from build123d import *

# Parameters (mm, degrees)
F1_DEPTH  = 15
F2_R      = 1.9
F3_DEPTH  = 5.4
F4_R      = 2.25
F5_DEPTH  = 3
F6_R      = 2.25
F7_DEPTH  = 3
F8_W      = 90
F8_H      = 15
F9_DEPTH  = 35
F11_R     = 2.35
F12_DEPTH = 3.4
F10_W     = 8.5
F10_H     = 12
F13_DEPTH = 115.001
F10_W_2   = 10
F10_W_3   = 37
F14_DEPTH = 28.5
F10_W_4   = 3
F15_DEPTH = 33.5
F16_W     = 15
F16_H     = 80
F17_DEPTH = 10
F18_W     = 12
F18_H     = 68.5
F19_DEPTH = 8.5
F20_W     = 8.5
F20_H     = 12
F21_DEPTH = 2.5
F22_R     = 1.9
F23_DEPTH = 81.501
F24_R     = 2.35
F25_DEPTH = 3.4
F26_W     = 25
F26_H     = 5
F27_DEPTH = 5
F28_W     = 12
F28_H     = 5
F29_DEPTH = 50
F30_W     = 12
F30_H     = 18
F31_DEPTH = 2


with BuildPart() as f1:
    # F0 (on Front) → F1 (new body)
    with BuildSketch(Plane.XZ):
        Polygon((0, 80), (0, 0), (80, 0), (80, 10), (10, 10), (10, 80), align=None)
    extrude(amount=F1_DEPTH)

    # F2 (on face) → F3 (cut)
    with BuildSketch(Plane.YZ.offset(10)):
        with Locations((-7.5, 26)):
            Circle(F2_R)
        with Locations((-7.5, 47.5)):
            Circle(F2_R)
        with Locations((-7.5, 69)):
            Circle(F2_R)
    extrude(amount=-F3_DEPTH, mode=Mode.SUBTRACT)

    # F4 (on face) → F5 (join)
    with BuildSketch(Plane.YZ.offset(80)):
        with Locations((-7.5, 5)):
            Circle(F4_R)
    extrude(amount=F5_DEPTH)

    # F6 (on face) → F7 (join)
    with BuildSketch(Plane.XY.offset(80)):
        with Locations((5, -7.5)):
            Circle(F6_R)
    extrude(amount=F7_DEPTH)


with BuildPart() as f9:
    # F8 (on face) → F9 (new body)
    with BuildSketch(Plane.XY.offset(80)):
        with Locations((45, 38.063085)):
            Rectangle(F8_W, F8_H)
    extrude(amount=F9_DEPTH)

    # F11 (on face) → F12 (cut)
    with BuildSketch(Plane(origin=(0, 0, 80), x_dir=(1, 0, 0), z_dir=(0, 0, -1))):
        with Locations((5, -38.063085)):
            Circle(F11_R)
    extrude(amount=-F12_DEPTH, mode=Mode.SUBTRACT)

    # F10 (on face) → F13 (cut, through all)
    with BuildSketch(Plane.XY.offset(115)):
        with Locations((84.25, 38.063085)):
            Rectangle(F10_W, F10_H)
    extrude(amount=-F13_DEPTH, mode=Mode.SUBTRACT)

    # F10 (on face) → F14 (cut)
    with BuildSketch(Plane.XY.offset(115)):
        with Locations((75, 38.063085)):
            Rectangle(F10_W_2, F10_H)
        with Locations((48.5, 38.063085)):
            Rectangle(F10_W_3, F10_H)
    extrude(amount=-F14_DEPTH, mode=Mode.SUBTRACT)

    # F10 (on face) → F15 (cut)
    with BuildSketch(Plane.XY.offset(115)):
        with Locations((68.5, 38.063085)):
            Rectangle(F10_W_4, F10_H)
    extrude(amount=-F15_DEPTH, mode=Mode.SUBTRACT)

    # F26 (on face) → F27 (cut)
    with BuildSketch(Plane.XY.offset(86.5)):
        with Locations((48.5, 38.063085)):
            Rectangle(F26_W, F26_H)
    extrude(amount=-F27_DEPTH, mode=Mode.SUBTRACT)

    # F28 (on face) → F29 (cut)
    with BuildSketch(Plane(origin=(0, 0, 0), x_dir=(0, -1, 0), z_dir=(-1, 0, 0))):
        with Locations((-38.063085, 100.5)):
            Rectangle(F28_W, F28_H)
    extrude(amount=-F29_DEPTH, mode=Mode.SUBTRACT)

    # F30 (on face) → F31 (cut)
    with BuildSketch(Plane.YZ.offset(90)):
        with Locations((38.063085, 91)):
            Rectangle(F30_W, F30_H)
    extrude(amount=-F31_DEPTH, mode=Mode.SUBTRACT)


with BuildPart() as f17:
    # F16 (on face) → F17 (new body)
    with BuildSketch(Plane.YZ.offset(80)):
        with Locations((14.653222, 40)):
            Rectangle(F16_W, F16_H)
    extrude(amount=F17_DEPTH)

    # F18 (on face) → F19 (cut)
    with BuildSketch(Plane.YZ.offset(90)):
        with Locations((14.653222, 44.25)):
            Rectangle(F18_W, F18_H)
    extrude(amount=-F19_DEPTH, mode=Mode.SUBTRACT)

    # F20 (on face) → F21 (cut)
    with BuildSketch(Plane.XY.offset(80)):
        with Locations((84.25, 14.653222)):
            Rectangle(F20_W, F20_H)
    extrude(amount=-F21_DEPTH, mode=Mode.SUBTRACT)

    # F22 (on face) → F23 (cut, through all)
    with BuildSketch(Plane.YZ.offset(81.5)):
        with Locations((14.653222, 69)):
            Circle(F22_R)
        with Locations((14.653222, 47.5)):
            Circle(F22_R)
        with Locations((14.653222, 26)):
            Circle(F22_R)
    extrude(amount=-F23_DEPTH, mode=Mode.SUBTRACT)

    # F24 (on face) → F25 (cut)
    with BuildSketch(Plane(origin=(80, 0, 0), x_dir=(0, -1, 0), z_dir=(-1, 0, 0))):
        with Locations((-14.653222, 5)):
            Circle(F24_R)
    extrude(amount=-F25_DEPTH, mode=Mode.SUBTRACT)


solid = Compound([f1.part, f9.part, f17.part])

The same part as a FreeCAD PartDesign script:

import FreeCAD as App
import Part
import Sketcher

V = App.Vector
Q = App.Units.Quantity


def add_polygon(sketch, points):
    """Adds a closed chain of lines whose ends are joined by coincident constraints."""
    first, n = sketch.GeometryCount, len(points)
    for a, b in zip(points, points[1:] + points[:1]):
        sketch.addGeometry(Part.LineSegment(App.Vector(*a, 0), App.Vector(*b, 0)), False)
    for i in range(n):
        sketch.addConstraint(Sketcher.Constraint("Coincident", first + i, 2, first + (i + 1) % n, 1))

doc = App.newDocument("Part")
body = doc.addObject("PartDesign::Body", "Body")

# Sketch on XZ plane
sketch1 = body.newObject("Sketcher::SketchObject", "Sketch")
sketch1.AttachmentSupport = (doc.getObject("XZ_Plane"), [""])
sketch1.MapMode = "FlatFace"
add_polygon(sketch1, [(0, 80), (0, 0), (80, 0), (80, 10), (10, 10), (10, 80)])  # lines 0-5
sketch1.addConstraint([
    Sketcher.Constraint("Vertical", 0),
    Sketcher.Constraint("Horizontal", 1),
    Sketcher.Constraint("Vertical", 2),
    Sketcher.Constraint("Horizontal", 3),
    Sketcher.Constraint("Vertical", 4),
    Sketcher.Constraint("Horizontal", 5),
    Sketcher.Constraint("Coincident", 0, 2, -1, 1),
    Sketcher.Constraint("Equal", 1, 0),
    Sketcher.Constraint("Equal", 5, 2),
    Sketcher.Constraint("DistanceX", 1, 1, 1, 2, Q("80 mm")),
    Sketcher.Constraint("DistanceX", 3, 2, 3, 1, Q("70 mm")),
])
pad1 = body.newObject("PartDesign::Pad", "Pad")
pad1.Profile = sketch1
pad1.Length = 15

# Sketch on YZ plane
sketch2 = body.newObject("Sketcher::SketchObject", "Sketch001")
sketch2.AttachmentSupport = (doc.getObject("YZ_Plane"), [""])
sketch2.MapMode = "FlatFace"
sketch2.AttachmentOffset = App.Placement(V(0, 0, 10), App.Rotation())
sketch2.addGeometry([
    Part.Circle(V(-7.5, 26, 0), V(0, 0, 1), 1.9),
    Part.Circle(V(-7.5, 47.5, 0), V(0, 0, 1), 1.9),
    Part.Circle(V(-7.5, 69, 0), V(0, 0, 1), 1.9),
], False)
sketch2.addConstraint([
    Sketcher.Constraint("Equal", 0, 1),
    Sketcher.Constraint("Equal", 1, 2),
    Sketcher.Constraint("Vertical", 0, 3, 1, 3),
    Sketcher.Constraint("Vertical", 1, 3, 2, 3),
    Sketcher.Constraint("Diameter", 0, Q("3.8 mm")),
    Sketcher.Constraint("DistanceY", -1, 1, 0, 3, Q("26 mm")),
    Sketcher.Constraint("DistanceY", -1, 1, 2, 3, Q("69 mm")),
    Sketcher.Constraint("DistanceX", 0, 3, -1, 1, Q("7.5 mm")),
    Sketcher.Constraint("DistanceY", -1, 1, 1, 3, Q("47.5 mm")),
])
pocket1 = body.newObject("PartDesign::Pocket", "Pocket")
pocket1.Profile = sketch2
pocket1.Length = 5.4

# Sketch on YZ plane
sketch3 = body.newObject("Sketcher::SketchObject", "Sketch002")
sketch3.AttachmentSupport = (doc.getObject("YZ_Plane"), [""])
sketch3.MapMode = "FlatFace"
sketch3.AttachmentOffset = App.Placement(V(0, 0, 80), App.Rotation())
sketch3.addGeometry(Part.Circle(V(-7.5, 5, 0), V(0, 0, 1), 2.2), False)
sketch3.addConstraint([
    Sketcher.Constraint("Diameter", 0, Q("4.5 mm")),
    Sketcher.Constraint("DistanceY", -1, 1, 0, 3, Q("5 mm")),
    Sketcher.Constraint("DistanceX", 0, 3, -1, 1, Q("7.5 mm")),
])
pad2 = body.newObject("PartDesign::Pad", "Pad001")
pad2.Profile = sketch3
pad2.Length = 3

# Sketch on XY plane
sketch4 = body.newObject("Sketcher::SketchObject", "Sketch003")
sketch4.AttachmentSupport = (doc.getObject("XY_Plane"), [""])
sketch4.MapMode = "FlatFace"
sketch4.AttachmentOffset = App.Placement(V(0, 0, 80), App.Rotation())
sketch4.addGeometry(Part.Circle(V(5, -7.5, 0), V(0, 0, 1), 2.2), False)
sketch4.addConstraint([
    Sketcher.Constraint("Diameter", 0, Q("4.5 mm")),
    Sketcher.Constraint("DistanceX", -1, 1, 0, 3, Q("5 mm")),
    Sketcher.Constraint("DistanceY", 0, 3, -1, 1, Q("7.5 mm")),
])
pad3 = body.newObject("PartDesign::Pad", "Pad002")
pad3.Profile = sketch4
pad3.Length = 3
body2 = doc.addObject("PartDesign::Body", "Body001")

# Sketch on XY plane
sketch5 = body2.newObject("Sketcher::SketchObject", "Sketch004")
sketch5.AttachmentSupport = (doc.getObject("XY_Plane001"), [""])
sketch5.MapMode = "FlatFace"
sketch5.AttachmentOffset = App.Placement(V(0, 0, 80), App.Rotation())
add_polygon(sketch5, [(0, 46), (0, 31), (90, 31), (90, 46)])  # lines 0-3
sketch5.addConstraint([
    Sketcher.Constraint("Vertical", 0),
    Sketcher.Constraint("Horizontal", 1),
    Sketcher.Constraint("Vertical", 2),
    Sketcher.Constraint("Horizontal", 3),
    Sketcher.Constraint("PointOnObject", 0, 2, -2),
    Sketcher.Constraint("DistanceX", 1, 1, 1, 2, Q("90 mm")),
    Sketcher.Constraint("DistanceY", 0, 2, 0, 1, Q("15 mm")),
    Sketcher.Constraint("DistanceY", -1, 1, 0, 2, Q("30.563085 mm")),
])
pad4 = body2.newObject("PartDesign::Pad", "Pad003")
pad4.Profile = sketch5
pad4.Length = 35

# Sketch on XY plane
sketch6 = body2.newObject("Sketcher::SketchObject", "Sketch005")
sketch6.AttachmentSupport = (doc.getObject("XY_Plane001"), [""])
sketch6.MapMode = "FlatFace"
sketch6.AttachmentOffset = App.Placement(V(0, 0, 80), App.Rotation())
sketch6.addGeometry(Part.Circle(V(5, 38.1, 0), V(0, 0, 1), 2.4), False)
sketch6.addConstraint([
    Sketcher.Constraint("Diameter", 0, Q("4.7 mm")),
    Sketcher.Constraint("DistanceX", -1, 1, 0, 3, Q("5 mm")),
    Sketcher.Constraint("DistanceY", -1, 1, 0, 3, Q("38.063085 mm")),
])
pocket2 = body2.newObject("PartDesign::Pocket", "Pocket001")
pocket2.Profile = sketch6
pocket2.Length = 3.4
pocket2.Reversed = True

# Sketch on XY plane
sketch7 = body2.newObject("Sketcher::SketchObject", "Sketch006")
sketch7.AttachmentSupport = (doc.getObject("XY_Plane001"), [""])
sketch7.MapMode = "FlatFace"
sketch7.AttachmentOffset = App.Placement(V(0, 0, 115), App.Rotation())
add_polygon(sketch7, [(80, 44), (80, 32), (88, 32), (88, 44)])  # lines 0-3
sketch7.addConstraint([
    Sketcher.Constraint("Vertical", 0),
    Sketcher.Constraint("Horizontal", 1),
    Sketcher.Constraint("Vertical", 2),
    Sketcher.Constraint("Horizontal", 3),
    Sketcher.Constraint("DistanceY", 0, 2, 0, 1, Q("12 mm")),
    Sketcher.Constraint("DistanceX", 1, 1, 1, 2, Q("8.5 mm")),
    Sketcher.Constraint("DistanceX", -1, 1, 0, 2, Q("80 mm")),
    Sketcher.Constraint("DistanceY", -1, 1, 0, 2, Q("32.063085 mm")),
])
pocket3 = body2.newObject("PartDesign::Pocket", "Pocket002")
pocket3.Profile = sketch7
pocket3.Type = "ThroughAll"

# Sketch on XY plane
sketch8 = body2.newObject("Sketcher::SketchObject", "Sketch007")
sketch8.AttachmentSupport = (doc.getObject("XY_Plane001"), [""])
sketch8.MapMode = "FlatFace"
sketch8.AttachmentOffset = App.Placement(V(0, 0, 115), App.Rotation())
add_polygon(sketch8, [(70, 44), (70, 32), (80, 32), (80, 44)])  # lines 0-3
add_polygon(sketch8, [(30, 44), (30, 32), (67, 32), (67, 44)])  # lines 4-7
sketch8.addConstraint([
    Sketcher.Constraint("Vertical", 0),
    Sketcher.Constraint("Horizontal", 1),
    Sketcher.Constraint("Vertical", 2),
    Sketcher.Constraint("Horizontal", 3),
    Sketcher.Constraint("Vertical", 4),
    Sketcher.Constraint("Horizontal", 5),
    Sketcher.Constraint("Vertical", 6),
    Sketcher.Constraint("Horizontal", 7),
    Sketcher.Constraint("Horizontal", 1, 2, 4, 2),
    Sketcher.Constraint("Horizontal", 3, 2, 6, 2),
    Sketcher.Constraint("DistanceX", 1, 1, 1, 2, Q("10 mm")),
    Sketcher.Constraint("DistanceX", 5, 1, 5, 2, Q("37 mm")),
    Sketcher.Constraint("DistanceY", 0, 2, 0, 1, Q("12 mm")),
    Sketcher.Constraint("DistanceX", -1, 1, 0, 2, Q("70 mm")),
    Sketcher.Constraint("DistanceX", -1, 1, 4, 2, Q("30 mm")),
    Sketcher.Constraint("DistanceY", -1, 1, 0, 2, Q("32.063085 mm")),
])
pocket4 = body2.newObject("PartDesign::Pocket", "Pocket003")
pocket4.Profile = sketch8
pocket4.Length = 28.5

# Sketch on XY plane
sketch9 = body2.newObject("Sketcher::SketchObject", "Sketch008")
sketch9.AttachmentSupport = (doc.getObject("XY_Plane001"), [""])
sketch9.MapMode = "FlatFace"
sketch9.AttachmentOffset = App.Placement(V(0, 0, 115), App.Rotation())
add_polygon(sketch9, [(67, 44.1), (67, 32.1), (70, 32.1), (70, 44.1)])  # lines 0-3
sketch9.addConstraint([
    Sketcher.Constraint("Vertical", 0),
    Sketcher.Constraint("Horizontal", 1),
    Sketcher.Constraint("Vertical", 2),
    Sketcher.Constraint("Horizontal", 3),
    Sketcher.Constraint("DistanceX", 1, 1, 1, 2, Q("3 mm")),
    Sketcher.Constraint("DistanceY", 0, 2, 0, 1, Q("12 mm")),
    Sketcher.Constraint("DistanceX", -1, 1, 0, 2, Q("67 mm")),
    Sketcher.Constraint("DistanceY", -1, 1, 0, 2, Q("32.063085 mm")),
])
pocket5 = body2.newObject("PartDesign::Pocket", "Pocket004")
pocket5.Profile = sketch9
pocket5.Length = 33.5

# Sketch on XY plane
sketch10 = body2.newObject("Sketcher::SketchObject", "Sketch009")
sketch10.AttachmentSupport = (doc.getObject("XY_Plane001"), [""])
sketch10.MapMode = "FlatFace"
sketch10.AttachmentOffset = App.Placement(V(0, 0, 86.5), App.Rotation())
add_polygon(sketch10, [(36, 41), (36, 36), (61, 36), (61, 41)])  # lines 0-3
sketch10.addConstraint([
    Sketcher.Constraint("Vertical", 0),
    Sketcher.Constraint("Horizontal", 1),
    Sketcher.Constraint("Vertical", 2),
    Sketcher.Constraint("Horizontal", 3),
    Sketcher.Constraint("DistanceX", 1, 1, 1, 2, Q("25 mm")),
    Sketcher.Constraint("DistanceY", 0, 2, 0, 1, Q("5 mm")),
    Sketcher.Constraint("DistanceX", -1, 1, 0, 2, Q("36 mm")),
    Sketcher.Constraint("DistanceY", -1, 1, 0, 2, Q("35.563085 mm")),
])
pocket6 = body2.newObject("PartDesign::Pocket", "Pocket005")
pocket6.Profile = sketch10
pocket6.Length = 5

# Sketch on YZ plane
sketch11 = body2.newObject("Sketcher::SketchObject", "Sketch010")
sketch11.AttachmentSupport = (doc.getObject("YZ_Plane001"), [""])
sketch11.MapMode = "FlatFace"
add_polygon(sketch11, [(44, 103), (44, 98), (32, 98), (32, 103)])  # lines 0-3
sketch11.addConstraint([
    Sketcher.Constraint("Vertical", 0),
    Sketcher.Constraint("Horizontal", 1),
    Sketcher.Constraint("Vertical", 2),
    Sketcher.Constraint("Horizontal", 3),
    Sketcher.Constraint("DistanceX", 1, 2, 1, 1, Q("12 mm")),
    Sketcher.Constraint("DistanceY", 0, 2, 0, 1, Q("5 mm")),
    Sketcher.Constraint("DistanceY", -1, 1, 0, 2, Q("98 mm")),
    Sketcher.Constraint("DistanceX", -1, 1, 0, 2, Q("44.063085 mm")),
])
pocket7 = body2.newObject("PartDesign::Pocket", "Pocket006")
pocket7.Profile = sketch11
pocket7.Length = 50
pocket7.Reversed = True

# Sketch on YZ plane
sketch12 = body2.newObject("Sketcher::SketchObject", "Sketch011")
sketch12.AttachmentSupport = (doc.getObject("YZ_Plane001"), [""])
sketch12.MapMode = "FlatFace"
sketch12.AttachmentOffset = App.Placement(V(0, 0, 90), App.Rotation())
add_polygon(sketch12, [(32, 100), (32, 82), (44, 82), (44, 100)])  # lines 0-3
sketch12.addConstraint([
    Sketcher.Constraint("Vertical", 0),
    Sketcher.Constraint("Horizontal", 1),
    Sketcher.Constraint("Vertical", 2),
    Sketcher.Constraint("Horizontal", 3),
    Sketcher.Constraint("DistanceX", 1, 1, 1, 2, Q("12 mm")),
    Sketcher.Constraint("DistanceY", 0, 2, 0, 1, Q("18 mm")),
    Sketcher.Constraint("DistanceY", -1, 1, 0, 2, Q("82 mm")),
    Sketcher.Constraint("DistanceX", -1, 1, 0, 2, Q("32.063085 mm")),
])
pocket8 = body2.newObject("PartDesign::Pocket", "Pocket007")
pocket8.Profile = sketch12
pocket8.Length = 2
body3 = doc.addObject("PartDesign::Body", "Body002")

# Sketch on YZ plane
sketch13 = body3.newObject("Sketcher::SketchObject", "Sketch012")
sketch13.AttachmentSupport = (doc.getObject("YZ_Plane002"), [""])
sketch13.MapMode = "FlatFace"
sketch13.AttachmentOffset = App.Placement(V(0, 0, 80), App.Rotation())
add_polygon(sketch13, [(7, 80), (7, 0), (22, 0), (22, 80)])  # lines 0-3
sketch13.addConstraint([
    Sketcher.Constraint("Vertical", 0),
    Sketcher.Constraint("Horizontal", 1),
    Sketcher.Constraint("Vertical", 2),
    Sketcher.Constraint("Horizontal", 3),
    Sketcher.Constraint("PointOnObject", 0, 2, -1),
    Sketcher.Constraint("DistanceX", 1, 1, 1, 2, Q("15 mm")),
    Sketcher.Constraint("DistanceY", 0, 2, 0, 1, Q("80 mm")),
    Sketcher.Constraint("DistanceX", -1, 1, 1, 2, Q("22.153222 mm")),
])
pad5 = body3.newObject("PartDesign::Pad", "Pad004")
pad5.Profile = sketch13
pad5.Length = 10

# Sketch on YZ plane
sketch14 = body3.newObject("Sketcher::SketchObject", "Sketch013")
sketch14.AttachmentSupport = (doc.getObject("YZ_Plane002"), [""])
sketch14.MapMode = "FlatFace"
sketch14.AttachmentOffset = App.Placement(V(0, 0, 90), App.Rotation())
add_polygon(sketch14, [(9, 78), (9, 10), (21, 10), (21, 78)])  # lines 0-3
sketch14.addConstraint([
    Sketcher.Constraint("Vertical", 0),
    Sketcher.Constraint("Horizontal", 1),
    Sketcher.Constraint("Vertical", 2),
    Sketcher.Constraint("Horizontal", 3),
    Sketcher.Constraint("DistanceX", 1, 1, 1, 2, Q("12 mm")),
    Sketcher.Constraint("DistanceY", 0, 2, 0, 1, Q("68.5 mm")),
    Sketcher.Constraint("DistanceY", -1, 1, 0, 2, Q("10 mm")),
    Sketcher.Constraint("DistanceX", -1, 1, 1, 2, Q("20.653222 mm")),
])
pocket9 = body3.newObject("PartDesign::Pocket", "Pocket008")
pocket9.Profile = sketch14
pocket9.Length = 8.5

# Sketch on XY plane
sketch15 = body3.newObject("Sketcher::SketchObject", "Sketch014")
sketch15.AttachmentSupport = (doc.getObject("XY_Plane002"), [""])
sketch15.MapMode = "FlatFace"
sketch15.AttachmentOffset = App.Placement(V(0, 0, 80), App.Rotation())
add_polygon(sketch15, [(80, 21), (80, 9), (88, 9), (88, 21)])  # lines 0-3
sketch15.addConstraint([
    Sketcher.Constraint("Vertical", 0),
    Sketcher.Constraint("Horizontal", 1),
    Sketcher.Constraint("Vertical", 2),
    Sketcher.Constraint("Horizontal", 3),
    Sketcher.Constraint("DistanceY", 0, 2, 0, 1, Q("12 mm")),
    Sketcher.Constraint("DistanceX", 1, 1, 1, 2, Q("8.5 mm")),
    Sketcher.Constraint("DistanceX", -1, 1, 0, 2, Q("80 mm")),
    Sketcher.Constraint("DistanceY", -1, 1, 2, 2, Q("20.653222 mm")),
])
pocket10 = body3.newObject("PartDesign::Pocket", "Pocket009")
pocket10.Profile = sketch15
pocket10.Length = 2.5

# Sketch on YZ plane
sketch16 = body3.newObject("Sketcher::SketchObject", "Sketch015")
sketch16.AttachmentSupport = (doc.getObject("YZ_Plane002"), [""])
sketch16.MapMode = "FlatFace"
sketch16.AttachmentOffset = App.Placement(V(0, 0, 81.5), App.Rotation())
sketch16.addGeometry([
    Part.Circle(V(14.7, 69, 0), V(0, 0, 1), 1.9),
    Part.Circle(V(14.7, 47.5, 0), V(0, 0, 1), 1.9),
    Part.Circle(V(14.7, 26, 0), V(0, 0, 1), 1.9),
], False)
sketch16.addConstraint([
    Sketcher.Constraint("Equal", 0, 1),
    Sketcher.Constraint("Equal", 1, 2),
    Sketcher.Constraint("Vertical", 0, 3, 1, 3),
    Sketcher.Constraint("Vertical", 1, 3, 2, 3),
    Sketcher.Constraint("Diameter", 0, Q("3.8 mm")),
    Sketcher.Constraint("DistanceY", -1, 1, 0, 3, Q("69 mm")),
    Sketcher.Constraint("DistanceY", -1, 1, 2, 3, Q("26 mm")),
    Sketcher.Constraint("DistanceY", -1, 1, 1, 3, Q("47.5 mm")),
    Sketcher.Constraint("DistanceX", -1, 1, 0, 3, Q("14.653222 mm")),
])
pocket11 = body3.newObject("PartDesign::Pocket", "Pocket010")
pocket11.Profile = sketch16
pocket11.Type = "ThroughAll"

# Sketch on YZ plane
sketch17 = body3.newObject("Sketcher::SketchObject", "Sketch016")
sketch17.AttachmentSupport = (doc.getObject("YZ_Plane002"), [""])
sketch17.MapMode = "FlatFace"
sketch17.AttachmentOffset = App.Placement(V(0, 0, 80), App.Rotation())
sketch17.addGeometry(Part.Circle(V(14.7, 5, 0), V(0, 0, 1), 2.4), False)
sketch17.addConstraint([
    Sketcher.Constraint("Diameter", 0, Q("4.7 mm")),
    Sketcher.Constraint("DistanceY", -1, 1, 0, 3, Q("5 mm")),
    Sketcher.Constraint("DistanceX", -1, 1, 0, 3, Q("14.653222 mm")),
])
pocket12 = body3.newObject("PartDesign::Pocket", "Pocket011")
pocket12.Profile = sketch17
pocket12.Length = 3.4
pocket12.Reversed = True

doc.recompute()
